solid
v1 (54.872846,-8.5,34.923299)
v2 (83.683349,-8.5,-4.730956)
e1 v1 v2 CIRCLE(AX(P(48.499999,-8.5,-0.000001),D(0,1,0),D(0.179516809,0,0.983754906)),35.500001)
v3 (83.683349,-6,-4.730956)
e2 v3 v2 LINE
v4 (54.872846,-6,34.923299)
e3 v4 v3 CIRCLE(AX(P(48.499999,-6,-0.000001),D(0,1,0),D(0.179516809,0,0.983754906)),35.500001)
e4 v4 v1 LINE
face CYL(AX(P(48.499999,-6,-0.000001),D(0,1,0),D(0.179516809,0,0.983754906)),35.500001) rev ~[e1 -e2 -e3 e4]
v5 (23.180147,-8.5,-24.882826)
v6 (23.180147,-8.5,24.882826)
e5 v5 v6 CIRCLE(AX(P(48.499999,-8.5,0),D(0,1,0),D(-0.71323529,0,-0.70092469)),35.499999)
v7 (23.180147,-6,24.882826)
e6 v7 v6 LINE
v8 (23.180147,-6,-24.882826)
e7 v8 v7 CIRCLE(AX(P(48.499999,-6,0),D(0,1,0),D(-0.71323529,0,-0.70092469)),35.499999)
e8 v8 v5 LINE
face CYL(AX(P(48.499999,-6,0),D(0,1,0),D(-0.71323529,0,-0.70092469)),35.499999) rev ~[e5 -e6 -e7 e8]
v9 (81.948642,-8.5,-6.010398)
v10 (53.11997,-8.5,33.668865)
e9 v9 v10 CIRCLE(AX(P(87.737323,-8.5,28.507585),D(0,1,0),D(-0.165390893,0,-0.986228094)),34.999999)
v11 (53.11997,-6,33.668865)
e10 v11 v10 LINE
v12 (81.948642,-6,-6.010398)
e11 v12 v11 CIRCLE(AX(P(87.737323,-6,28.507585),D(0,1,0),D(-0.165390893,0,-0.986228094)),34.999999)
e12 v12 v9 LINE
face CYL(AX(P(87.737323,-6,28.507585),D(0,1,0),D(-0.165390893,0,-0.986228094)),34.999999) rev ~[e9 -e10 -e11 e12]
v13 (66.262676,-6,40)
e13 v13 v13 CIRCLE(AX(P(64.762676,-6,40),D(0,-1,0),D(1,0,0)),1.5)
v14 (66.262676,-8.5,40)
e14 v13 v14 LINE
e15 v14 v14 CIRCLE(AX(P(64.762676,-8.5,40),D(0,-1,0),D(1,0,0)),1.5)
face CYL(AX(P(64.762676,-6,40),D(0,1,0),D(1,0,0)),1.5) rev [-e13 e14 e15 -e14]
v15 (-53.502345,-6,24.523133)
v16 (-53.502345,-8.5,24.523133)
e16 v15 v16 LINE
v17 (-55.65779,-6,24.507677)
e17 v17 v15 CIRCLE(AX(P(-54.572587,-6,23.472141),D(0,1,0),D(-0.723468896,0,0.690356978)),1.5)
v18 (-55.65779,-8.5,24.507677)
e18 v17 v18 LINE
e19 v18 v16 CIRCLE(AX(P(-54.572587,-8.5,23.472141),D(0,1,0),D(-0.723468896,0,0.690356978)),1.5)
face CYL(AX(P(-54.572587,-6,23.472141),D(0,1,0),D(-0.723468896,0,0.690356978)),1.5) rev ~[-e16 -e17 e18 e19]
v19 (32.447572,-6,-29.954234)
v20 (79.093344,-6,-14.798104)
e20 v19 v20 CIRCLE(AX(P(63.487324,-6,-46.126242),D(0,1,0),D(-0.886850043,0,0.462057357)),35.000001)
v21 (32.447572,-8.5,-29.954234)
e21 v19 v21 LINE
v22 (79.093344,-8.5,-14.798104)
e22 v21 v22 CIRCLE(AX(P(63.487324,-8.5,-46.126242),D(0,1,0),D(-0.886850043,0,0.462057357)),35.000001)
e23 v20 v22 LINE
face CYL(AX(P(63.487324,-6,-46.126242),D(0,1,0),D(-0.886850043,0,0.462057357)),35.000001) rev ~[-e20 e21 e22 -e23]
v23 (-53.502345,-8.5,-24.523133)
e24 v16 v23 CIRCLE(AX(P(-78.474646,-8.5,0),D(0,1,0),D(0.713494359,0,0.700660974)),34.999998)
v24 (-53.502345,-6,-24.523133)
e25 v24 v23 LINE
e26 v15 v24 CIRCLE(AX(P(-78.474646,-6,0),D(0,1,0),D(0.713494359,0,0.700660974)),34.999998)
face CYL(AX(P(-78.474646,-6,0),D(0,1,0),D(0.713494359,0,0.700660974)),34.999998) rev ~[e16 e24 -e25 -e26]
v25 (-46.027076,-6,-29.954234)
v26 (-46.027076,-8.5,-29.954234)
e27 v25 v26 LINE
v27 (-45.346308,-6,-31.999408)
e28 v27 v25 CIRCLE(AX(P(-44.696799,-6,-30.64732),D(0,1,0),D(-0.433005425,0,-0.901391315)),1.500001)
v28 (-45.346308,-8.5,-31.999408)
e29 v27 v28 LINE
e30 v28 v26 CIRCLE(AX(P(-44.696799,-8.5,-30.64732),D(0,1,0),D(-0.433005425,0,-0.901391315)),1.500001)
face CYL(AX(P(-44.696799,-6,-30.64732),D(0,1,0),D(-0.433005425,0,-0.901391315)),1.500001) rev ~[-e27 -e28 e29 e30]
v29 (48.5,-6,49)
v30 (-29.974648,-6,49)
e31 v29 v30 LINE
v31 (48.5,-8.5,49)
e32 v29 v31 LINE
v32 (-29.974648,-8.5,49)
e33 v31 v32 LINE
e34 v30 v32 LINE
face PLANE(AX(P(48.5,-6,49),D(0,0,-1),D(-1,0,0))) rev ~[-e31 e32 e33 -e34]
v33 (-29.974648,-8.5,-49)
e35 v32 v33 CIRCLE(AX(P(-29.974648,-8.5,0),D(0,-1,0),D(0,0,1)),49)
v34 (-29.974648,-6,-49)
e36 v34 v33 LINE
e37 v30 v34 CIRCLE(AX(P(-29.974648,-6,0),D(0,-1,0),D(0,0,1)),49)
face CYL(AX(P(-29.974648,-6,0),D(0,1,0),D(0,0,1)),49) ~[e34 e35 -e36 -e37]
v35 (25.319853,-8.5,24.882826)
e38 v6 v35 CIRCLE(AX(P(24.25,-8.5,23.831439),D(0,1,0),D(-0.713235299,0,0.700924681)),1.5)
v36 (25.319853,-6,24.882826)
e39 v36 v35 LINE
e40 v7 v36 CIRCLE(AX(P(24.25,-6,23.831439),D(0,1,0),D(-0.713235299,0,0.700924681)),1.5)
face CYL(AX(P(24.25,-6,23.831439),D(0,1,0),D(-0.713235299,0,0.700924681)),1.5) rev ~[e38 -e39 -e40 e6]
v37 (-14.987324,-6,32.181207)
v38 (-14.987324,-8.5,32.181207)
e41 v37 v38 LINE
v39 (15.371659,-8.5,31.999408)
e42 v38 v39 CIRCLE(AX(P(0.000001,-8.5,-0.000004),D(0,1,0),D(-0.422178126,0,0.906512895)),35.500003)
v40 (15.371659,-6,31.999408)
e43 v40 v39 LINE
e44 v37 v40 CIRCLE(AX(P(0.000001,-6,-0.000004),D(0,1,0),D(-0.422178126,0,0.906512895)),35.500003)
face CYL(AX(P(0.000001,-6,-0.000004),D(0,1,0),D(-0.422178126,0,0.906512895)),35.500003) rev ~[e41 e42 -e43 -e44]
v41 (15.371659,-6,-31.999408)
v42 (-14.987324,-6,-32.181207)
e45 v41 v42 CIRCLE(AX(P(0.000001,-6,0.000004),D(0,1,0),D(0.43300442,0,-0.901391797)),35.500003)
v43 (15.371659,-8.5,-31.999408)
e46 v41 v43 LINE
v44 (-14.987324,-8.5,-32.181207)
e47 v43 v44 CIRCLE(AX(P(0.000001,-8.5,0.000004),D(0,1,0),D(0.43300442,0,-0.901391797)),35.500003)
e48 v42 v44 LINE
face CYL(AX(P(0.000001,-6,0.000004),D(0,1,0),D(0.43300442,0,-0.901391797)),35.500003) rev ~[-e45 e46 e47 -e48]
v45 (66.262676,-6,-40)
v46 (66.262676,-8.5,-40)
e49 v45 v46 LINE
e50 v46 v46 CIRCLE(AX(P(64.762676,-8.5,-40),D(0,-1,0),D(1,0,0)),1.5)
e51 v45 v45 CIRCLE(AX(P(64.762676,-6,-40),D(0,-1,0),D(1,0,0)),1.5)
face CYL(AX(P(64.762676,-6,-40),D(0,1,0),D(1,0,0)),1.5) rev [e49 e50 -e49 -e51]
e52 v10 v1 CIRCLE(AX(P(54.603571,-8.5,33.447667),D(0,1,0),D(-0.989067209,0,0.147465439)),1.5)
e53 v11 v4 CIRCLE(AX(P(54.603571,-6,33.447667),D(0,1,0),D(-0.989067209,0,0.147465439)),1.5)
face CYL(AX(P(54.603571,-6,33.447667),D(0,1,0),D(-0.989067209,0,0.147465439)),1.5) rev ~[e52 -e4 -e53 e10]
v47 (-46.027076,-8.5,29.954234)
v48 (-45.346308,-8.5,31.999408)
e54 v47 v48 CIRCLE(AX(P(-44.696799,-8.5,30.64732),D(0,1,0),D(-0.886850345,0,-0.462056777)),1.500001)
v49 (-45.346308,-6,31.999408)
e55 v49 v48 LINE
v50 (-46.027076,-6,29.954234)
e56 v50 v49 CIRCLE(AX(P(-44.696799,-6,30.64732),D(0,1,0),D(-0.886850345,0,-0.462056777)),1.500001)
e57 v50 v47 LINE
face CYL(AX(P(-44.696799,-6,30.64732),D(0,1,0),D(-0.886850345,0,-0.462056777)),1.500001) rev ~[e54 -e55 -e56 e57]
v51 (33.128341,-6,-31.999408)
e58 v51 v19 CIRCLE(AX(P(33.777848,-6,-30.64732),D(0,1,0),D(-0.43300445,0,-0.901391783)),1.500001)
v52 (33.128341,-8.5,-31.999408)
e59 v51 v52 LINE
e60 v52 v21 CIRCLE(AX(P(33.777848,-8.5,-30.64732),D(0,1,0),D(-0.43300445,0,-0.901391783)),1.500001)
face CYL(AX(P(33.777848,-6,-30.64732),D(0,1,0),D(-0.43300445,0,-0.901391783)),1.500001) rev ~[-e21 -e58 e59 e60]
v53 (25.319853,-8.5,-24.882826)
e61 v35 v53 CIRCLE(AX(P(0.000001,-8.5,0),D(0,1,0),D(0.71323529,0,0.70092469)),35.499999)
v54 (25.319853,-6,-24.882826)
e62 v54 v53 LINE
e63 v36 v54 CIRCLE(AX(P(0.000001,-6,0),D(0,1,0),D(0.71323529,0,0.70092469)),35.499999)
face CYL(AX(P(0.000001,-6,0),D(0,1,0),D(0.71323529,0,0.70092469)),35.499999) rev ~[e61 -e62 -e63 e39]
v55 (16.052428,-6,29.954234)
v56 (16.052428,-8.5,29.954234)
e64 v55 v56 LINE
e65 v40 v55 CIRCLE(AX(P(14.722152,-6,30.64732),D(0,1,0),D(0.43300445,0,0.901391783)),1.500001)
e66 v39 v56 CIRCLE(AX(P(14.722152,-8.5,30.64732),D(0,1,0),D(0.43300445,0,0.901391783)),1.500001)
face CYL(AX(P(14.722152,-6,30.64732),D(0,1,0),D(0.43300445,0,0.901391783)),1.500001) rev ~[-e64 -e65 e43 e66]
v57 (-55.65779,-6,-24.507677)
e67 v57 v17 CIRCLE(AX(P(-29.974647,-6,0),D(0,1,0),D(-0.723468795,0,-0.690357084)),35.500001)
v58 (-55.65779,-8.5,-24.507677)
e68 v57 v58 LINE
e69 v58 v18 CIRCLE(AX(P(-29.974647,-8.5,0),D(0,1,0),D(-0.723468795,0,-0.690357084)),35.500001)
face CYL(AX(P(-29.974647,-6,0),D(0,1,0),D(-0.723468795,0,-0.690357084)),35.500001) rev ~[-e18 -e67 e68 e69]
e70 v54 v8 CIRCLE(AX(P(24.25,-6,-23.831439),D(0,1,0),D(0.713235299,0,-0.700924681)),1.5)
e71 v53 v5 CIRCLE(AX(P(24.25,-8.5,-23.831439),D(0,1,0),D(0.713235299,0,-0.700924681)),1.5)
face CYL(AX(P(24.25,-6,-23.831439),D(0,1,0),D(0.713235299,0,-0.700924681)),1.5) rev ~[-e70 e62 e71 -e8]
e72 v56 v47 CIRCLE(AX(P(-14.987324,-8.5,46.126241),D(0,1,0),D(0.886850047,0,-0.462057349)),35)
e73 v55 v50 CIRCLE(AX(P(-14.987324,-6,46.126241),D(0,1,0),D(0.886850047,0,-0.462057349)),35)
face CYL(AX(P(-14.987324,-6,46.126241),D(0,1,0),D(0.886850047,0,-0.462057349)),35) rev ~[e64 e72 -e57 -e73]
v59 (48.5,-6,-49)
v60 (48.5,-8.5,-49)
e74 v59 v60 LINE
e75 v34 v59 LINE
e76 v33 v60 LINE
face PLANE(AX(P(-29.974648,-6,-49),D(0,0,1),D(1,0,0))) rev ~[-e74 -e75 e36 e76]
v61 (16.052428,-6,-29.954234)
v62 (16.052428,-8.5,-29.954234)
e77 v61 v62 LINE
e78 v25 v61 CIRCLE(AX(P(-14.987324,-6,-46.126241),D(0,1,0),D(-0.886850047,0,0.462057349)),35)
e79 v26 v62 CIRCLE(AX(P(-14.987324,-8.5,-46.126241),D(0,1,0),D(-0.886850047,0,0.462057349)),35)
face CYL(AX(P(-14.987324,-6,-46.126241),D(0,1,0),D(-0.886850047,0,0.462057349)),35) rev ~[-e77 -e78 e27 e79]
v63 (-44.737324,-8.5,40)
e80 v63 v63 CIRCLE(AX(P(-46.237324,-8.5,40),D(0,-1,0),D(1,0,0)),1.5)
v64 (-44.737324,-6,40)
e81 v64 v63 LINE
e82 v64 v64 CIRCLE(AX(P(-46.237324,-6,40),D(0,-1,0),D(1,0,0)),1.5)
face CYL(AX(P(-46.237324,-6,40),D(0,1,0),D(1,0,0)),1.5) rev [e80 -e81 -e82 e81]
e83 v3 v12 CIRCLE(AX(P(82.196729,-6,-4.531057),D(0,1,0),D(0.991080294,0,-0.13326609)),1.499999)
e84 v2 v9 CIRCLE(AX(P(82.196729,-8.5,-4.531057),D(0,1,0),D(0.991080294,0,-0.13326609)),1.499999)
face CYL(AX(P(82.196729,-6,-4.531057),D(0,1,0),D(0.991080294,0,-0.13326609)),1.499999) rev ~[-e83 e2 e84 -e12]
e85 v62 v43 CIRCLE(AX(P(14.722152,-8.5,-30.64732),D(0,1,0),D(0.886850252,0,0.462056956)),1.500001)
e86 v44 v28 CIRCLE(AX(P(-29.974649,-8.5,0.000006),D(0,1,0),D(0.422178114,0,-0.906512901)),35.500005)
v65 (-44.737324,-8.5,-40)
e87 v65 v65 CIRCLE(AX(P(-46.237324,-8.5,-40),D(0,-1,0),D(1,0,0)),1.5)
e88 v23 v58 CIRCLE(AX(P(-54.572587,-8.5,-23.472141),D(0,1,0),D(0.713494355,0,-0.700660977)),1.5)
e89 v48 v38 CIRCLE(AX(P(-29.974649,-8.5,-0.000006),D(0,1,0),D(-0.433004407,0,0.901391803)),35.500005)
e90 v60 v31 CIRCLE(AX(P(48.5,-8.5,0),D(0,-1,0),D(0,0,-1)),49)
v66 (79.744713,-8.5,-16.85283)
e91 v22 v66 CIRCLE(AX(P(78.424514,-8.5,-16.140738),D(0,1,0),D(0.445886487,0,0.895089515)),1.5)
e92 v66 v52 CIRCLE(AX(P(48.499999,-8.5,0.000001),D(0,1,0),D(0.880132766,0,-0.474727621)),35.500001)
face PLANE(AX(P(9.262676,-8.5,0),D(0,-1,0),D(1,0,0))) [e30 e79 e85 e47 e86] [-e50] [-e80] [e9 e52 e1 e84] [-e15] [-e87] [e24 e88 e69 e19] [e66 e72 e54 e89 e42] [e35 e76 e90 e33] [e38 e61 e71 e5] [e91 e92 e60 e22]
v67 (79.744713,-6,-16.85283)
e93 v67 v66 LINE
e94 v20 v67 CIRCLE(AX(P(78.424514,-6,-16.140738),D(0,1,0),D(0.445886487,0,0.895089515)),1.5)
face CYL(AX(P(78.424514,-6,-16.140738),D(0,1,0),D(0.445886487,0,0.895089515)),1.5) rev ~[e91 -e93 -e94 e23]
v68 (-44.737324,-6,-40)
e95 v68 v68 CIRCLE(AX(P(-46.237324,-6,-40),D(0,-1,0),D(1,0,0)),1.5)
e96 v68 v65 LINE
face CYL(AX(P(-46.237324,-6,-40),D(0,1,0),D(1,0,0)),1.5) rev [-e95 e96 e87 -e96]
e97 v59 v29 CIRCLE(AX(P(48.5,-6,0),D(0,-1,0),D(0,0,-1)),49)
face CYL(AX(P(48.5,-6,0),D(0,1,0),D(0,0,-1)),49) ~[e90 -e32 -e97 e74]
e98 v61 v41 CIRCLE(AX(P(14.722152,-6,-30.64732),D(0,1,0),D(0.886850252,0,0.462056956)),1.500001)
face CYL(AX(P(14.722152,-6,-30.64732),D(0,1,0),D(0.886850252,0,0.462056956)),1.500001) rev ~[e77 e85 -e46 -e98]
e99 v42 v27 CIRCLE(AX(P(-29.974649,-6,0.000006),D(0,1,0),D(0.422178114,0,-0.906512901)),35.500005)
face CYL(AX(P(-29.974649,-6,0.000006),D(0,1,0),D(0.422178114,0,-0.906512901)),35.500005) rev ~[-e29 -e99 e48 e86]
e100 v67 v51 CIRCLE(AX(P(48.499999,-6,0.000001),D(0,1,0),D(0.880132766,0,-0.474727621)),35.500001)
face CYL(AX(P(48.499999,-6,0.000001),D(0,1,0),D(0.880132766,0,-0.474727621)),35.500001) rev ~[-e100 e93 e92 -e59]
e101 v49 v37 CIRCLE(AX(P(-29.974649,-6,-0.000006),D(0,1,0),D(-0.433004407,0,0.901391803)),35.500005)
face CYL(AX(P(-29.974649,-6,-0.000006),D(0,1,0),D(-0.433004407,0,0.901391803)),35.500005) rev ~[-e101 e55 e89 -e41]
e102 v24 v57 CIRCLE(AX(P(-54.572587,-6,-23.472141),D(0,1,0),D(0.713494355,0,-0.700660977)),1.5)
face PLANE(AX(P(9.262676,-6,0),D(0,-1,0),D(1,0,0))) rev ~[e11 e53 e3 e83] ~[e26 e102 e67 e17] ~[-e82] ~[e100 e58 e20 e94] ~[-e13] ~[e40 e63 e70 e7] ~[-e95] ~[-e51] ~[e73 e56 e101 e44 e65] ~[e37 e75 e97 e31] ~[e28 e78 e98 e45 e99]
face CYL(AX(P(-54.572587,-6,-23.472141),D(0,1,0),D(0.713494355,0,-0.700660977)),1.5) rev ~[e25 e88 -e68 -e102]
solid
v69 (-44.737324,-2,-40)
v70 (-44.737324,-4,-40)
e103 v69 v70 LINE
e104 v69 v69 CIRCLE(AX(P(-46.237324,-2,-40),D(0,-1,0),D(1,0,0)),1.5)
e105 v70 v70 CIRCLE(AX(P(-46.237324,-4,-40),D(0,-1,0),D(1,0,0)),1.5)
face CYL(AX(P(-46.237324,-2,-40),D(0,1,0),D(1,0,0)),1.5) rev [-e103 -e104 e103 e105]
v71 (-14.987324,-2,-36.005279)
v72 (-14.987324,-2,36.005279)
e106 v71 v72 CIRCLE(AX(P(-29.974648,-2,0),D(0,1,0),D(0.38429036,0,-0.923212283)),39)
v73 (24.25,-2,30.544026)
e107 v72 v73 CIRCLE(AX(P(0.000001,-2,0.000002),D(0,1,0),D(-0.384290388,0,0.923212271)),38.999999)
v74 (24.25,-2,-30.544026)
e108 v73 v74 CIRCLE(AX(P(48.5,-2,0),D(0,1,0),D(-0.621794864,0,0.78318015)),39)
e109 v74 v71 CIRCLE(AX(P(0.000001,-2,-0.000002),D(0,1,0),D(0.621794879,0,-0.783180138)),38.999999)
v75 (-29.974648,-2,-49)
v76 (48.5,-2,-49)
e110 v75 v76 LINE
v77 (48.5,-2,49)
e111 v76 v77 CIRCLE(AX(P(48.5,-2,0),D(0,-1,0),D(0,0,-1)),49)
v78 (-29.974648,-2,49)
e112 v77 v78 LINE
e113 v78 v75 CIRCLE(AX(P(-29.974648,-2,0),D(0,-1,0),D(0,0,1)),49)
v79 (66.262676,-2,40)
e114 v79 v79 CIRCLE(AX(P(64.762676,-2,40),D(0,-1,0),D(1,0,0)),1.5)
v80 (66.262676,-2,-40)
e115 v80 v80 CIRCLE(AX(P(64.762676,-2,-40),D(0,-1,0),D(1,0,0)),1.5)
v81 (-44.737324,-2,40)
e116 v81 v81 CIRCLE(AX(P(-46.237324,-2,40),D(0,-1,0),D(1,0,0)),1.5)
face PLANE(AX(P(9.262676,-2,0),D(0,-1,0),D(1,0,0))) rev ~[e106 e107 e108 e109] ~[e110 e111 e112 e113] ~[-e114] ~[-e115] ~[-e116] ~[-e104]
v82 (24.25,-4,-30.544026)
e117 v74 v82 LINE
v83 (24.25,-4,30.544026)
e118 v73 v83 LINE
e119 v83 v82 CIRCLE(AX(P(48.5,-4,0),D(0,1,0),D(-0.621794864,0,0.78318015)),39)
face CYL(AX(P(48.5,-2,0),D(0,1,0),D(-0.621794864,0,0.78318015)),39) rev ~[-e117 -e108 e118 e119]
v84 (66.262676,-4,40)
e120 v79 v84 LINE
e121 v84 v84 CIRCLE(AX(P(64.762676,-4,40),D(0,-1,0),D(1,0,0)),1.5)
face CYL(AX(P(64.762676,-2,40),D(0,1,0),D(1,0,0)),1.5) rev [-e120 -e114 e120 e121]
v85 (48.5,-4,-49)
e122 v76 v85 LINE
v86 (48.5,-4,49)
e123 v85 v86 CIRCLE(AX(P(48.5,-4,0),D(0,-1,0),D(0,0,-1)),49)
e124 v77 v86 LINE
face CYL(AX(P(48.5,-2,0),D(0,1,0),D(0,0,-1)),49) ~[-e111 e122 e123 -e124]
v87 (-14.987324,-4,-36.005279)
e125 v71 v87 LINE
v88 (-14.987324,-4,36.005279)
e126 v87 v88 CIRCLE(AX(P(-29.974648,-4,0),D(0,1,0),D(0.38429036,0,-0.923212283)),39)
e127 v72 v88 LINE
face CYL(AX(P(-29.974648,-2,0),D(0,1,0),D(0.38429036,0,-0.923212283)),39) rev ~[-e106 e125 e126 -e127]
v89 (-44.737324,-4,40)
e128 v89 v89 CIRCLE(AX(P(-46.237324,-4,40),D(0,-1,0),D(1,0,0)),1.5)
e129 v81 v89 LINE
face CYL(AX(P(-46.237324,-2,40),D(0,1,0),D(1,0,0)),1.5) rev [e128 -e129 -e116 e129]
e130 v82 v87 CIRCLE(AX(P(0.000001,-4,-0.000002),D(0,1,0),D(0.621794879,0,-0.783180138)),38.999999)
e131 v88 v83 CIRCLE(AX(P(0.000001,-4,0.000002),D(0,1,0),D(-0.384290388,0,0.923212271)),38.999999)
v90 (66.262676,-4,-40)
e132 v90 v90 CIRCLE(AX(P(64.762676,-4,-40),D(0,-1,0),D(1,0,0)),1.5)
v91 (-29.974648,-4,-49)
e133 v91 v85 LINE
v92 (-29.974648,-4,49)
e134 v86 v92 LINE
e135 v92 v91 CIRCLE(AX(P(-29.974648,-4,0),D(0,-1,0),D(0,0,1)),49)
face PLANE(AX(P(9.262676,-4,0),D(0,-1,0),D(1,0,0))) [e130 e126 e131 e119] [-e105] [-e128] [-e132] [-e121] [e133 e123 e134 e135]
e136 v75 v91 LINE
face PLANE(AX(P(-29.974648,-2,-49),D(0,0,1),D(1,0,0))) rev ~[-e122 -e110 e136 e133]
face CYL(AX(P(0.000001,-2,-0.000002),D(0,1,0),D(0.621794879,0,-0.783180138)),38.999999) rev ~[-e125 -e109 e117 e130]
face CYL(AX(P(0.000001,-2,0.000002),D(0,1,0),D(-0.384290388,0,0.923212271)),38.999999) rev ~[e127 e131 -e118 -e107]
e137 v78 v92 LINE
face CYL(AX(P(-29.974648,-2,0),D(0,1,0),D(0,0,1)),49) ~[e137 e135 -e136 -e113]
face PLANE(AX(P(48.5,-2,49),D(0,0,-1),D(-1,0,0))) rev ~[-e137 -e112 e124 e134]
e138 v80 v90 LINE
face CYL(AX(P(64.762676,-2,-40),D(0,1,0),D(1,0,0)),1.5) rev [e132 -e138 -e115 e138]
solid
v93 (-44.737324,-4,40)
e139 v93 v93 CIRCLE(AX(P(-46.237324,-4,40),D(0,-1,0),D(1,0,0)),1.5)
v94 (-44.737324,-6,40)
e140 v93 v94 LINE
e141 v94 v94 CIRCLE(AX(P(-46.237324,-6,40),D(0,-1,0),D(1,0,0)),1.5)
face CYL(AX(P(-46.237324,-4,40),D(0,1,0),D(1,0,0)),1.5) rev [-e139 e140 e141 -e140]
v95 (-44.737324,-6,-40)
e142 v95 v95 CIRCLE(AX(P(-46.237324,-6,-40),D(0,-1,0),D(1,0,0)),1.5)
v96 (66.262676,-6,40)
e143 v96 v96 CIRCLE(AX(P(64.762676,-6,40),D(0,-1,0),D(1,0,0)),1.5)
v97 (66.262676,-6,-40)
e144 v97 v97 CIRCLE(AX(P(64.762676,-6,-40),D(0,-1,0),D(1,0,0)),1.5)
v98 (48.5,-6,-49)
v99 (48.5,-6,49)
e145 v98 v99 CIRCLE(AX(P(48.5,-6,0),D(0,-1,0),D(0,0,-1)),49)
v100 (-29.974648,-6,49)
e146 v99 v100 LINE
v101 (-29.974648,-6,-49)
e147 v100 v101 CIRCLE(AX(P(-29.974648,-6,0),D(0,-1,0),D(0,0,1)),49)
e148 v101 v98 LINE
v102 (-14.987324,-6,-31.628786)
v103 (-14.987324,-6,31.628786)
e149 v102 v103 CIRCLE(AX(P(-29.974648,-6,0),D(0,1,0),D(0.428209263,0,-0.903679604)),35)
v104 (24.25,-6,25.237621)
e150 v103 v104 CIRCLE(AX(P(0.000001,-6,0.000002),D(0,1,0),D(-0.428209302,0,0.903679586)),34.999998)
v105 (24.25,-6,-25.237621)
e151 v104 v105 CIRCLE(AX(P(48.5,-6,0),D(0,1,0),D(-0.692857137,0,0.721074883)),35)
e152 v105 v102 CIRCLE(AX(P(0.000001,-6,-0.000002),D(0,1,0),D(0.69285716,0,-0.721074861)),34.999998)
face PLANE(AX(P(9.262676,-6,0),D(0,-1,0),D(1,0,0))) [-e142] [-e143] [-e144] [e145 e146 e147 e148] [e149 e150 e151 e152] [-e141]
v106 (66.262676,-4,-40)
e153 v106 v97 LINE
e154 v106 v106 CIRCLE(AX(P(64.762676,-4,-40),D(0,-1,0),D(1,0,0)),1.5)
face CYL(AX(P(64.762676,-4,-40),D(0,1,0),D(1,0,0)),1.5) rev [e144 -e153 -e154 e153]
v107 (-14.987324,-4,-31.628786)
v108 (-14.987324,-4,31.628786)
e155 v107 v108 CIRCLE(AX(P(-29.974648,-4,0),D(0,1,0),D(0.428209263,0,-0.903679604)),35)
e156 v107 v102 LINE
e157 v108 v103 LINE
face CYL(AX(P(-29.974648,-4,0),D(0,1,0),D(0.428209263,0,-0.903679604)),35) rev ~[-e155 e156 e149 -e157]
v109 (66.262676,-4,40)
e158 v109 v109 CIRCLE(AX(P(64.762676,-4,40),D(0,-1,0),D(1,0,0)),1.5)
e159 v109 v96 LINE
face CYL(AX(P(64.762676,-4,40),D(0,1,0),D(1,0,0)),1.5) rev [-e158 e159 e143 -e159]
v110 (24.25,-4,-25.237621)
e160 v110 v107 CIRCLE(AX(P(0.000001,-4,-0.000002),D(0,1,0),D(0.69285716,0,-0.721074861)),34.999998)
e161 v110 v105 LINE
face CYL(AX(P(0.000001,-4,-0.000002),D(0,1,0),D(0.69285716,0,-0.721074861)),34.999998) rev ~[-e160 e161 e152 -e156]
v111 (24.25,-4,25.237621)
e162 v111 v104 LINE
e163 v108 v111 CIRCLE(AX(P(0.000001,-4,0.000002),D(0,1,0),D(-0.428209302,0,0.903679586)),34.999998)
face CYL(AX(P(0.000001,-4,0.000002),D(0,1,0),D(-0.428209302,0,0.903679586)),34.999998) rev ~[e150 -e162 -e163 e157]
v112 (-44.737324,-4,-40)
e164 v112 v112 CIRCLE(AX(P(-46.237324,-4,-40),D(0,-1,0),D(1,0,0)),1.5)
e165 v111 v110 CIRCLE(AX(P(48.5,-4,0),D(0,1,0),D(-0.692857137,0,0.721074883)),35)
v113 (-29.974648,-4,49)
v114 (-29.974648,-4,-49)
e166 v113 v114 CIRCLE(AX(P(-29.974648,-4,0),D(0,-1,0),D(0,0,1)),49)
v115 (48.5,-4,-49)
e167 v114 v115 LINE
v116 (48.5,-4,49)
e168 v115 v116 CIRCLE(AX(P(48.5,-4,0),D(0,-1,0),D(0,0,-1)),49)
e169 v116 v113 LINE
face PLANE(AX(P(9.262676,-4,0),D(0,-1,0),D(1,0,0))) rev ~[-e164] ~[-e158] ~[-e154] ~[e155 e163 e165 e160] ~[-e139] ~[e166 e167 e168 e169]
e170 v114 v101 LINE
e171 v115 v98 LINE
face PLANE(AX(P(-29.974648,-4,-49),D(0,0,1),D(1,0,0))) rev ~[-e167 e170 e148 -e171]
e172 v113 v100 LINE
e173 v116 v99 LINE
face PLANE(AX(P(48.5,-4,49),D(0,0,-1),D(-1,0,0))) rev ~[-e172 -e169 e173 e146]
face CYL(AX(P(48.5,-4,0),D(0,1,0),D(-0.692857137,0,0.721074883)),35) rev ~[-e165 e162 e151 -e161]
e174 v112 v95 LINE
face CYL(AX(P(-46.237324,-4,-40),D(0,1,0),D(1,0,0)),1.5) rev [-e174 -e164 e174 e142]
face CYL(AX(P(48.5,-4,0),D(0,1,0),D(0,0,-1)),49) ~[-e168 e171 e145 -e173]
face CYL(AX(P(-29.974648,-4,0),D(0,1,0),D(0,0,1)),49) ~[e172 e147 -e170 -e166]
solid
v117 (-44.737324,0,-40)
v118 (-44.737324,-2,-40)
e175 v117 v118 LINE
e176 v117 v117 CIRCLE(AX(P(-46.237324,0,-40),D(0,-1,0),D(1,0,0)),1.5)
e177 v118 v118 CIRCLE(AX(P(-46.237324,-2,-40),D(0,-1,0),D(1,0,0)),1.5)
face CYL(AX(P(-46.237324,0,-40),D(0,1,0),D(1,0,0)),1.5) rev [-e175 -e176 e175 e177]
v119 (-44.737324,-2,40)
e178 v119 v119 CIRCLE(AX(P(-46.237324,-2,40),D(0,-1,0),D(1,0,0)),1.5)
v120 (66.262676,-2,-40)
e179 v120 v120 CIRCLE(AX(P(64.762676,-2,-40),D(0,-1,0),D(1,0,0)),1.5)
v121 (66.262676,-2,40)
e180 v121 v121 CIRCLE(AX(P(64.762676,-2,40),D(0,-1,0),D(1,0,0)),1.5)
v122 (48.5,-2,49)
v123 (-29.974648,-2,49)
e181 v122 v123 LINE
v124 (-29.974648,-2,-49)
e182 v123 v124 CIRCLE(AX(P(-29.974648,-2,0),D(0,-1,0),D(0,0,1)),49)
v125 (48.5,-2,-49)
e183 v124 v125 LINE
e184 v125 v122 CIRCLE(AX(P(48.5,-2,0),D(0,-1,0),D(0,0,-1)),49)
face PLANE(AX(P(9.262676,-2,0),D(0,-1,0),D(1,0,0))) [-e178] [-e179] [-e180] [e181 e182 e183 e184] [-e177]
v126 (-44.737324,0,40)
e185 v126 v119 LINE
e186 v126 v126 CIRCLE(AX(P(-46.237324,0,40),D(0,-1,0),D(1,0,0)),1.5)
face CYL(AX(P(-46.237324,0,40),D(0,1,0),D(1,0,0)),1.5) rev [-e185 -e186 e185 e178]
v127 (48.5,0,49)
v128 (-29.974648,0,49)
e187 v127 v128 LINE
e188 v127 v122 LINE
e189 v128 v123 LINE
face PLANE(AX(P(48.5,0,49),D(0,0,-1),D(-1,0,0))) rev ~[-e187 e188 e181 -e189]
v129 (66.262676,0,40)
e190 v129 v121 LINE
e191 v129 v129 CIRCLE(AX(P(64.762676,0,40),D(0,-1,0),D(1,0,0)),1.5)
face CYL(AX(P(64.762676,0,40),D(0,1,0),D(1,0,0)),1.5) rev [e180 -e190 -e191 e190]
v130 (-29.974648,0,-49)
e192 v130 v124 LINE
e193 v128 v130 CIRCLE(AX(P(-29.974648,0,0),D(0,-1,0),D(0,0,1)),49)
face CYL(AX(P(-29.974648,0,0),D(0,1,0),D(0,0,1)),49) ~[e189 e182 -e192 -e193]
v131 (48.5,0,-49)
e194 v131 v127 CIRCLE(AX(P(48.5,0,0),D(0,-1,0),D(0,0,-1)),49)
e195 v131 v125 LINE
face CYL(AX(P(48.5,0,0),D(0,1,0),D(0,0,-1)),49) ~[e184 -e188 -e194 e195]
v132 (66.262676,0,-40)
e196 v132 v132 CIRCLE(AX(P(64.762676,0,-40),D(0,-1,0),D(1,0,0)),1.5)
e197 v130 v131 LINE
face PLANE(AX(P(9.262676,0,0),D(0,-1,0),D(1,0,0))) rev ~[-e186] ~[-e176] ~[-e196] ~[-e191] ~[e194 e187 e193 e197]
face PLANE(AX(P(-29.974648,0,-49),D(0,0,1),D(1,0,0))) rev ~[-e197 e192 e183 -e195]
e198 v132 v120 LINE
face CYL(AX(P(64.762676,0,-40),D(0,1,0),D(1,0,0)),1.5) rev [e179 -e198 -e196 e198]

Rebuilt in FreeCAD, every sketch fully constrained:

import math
import FreeCAD as App
import Part
import Sketcher
from FreeCAD import Vector
Q = App.Units.Quantity

doc = App.newDocument("Part")
body = doc.addObject("PartDesign::Body", "Body")

# Sketch on XZ plane
sketch1 = doc.addObject("Sketcher::SketchObject", "Sketch")
body.addObject(sketch1)
sketch1.AttachmentSupport = (doc.XZ_Plane, [""])
sketch1.MapMode = "FlatFace"
sketch1.addGeometry(Part.LineSegment(Vector(48.5, 49, 0), Vector(-30, 49, 0)), False)
sketch1.addGeometry(Part.ArcOfCircle(Part.Circle(Vector(-30, 0, 0), Vector(0, 0, 1), 49), math.radians(90), math.radians(270)), False)
sketch1.addGeometry(Part.LineSegment(Vector(-30, -49, 0), Vector(48.5, -49, 0)), False)
sketch1.addGeometry(Part.ArcOfCircle(Part.Circle(Vector(48.5, 0, 0), Vector(0, 0, 1), 49), math.radians(-90), math.radians(90)), False)
sketch1.addGeometry(Part.Circle(Vector(-46.2, -40, 0), Vector(0, 0, 1), 1.5), False)
sketch1.addGeometry(Part.Circle(Vector(64.8, -40, 0), Vector(0, 0, 1), 1.5), False)
sketch1.addGeometry(Part.Circle(Vector(-46.2, 40, 0), Vector(0, 0, 1), 1.5), False)
sketch1.addGeometry(Part.Circle(Vector(64.8, 40, 0), Vector(0, 0, 1), 1.5), False)
sketch1.addConstraint(Sketcher.Constraint("Tangent", 0, 2, 1, 1))
sketch1.addConstraint(Sketcher.Constraint("Tangent", 1, 2, 2, 1))
sketch1.addConstraint(Sketcher.Constraint("Tangent", 2, 2, 3, 1))
sketch1.addConstraint(Sketcher.Constraint("Tangent", 3, 2, 0, 1))
sketch1.addConstraint(Sketcher.Constraint("Horizontal", 0))
sketch1.addConstraint(Sketcher.Constraint("Horizontal", 2))
sketch1.addConstraint(Sketcher.Constraint("Equal", 4, 5))
sketch1.addConstraint(Sketcher.Constraint("Equal", 5, 6))
sketch1.addConstraint(Sketcher.Constraint("Equal", 6, 7))
sketch1.addConstraint(Sketcher.Constraint("Symmetric", 4, 3, 6, 3, -1))
sketch1.addConstraint(Sketcher.Constraint("Symmetric", 5, 3, 7, 3, -1))
sketch1.addConstraint(Sketcher.Constraint("PointOnObject", 1, 3, -1))
sketch1.addConstraint(Sketcher.Constraint("Horizontal", 4, 3, 5, 3))
sketch1.addConstraint(Sketcher.Constraint("Diameter", 4, Q("3 mm")))
sketch1.addConstraint(Sketcher.Constraint("Radius", 1, Q("49 mm")))
sketch1.addConstraint(Sketcher.Constraint("DistanceY", 4, 3, -1, 1, Q("40 mm")))
sketch1.addConstraint(Sketcher.Constraint("DistanceX", 4, 3, 5, 3, Q("111 mm")))
sketch1.addConstraint(Sketcher.Constraint("DistanceX", -1, 1, 3, 3, Q("48.5 mm")))
sketch1.addConstraint(Sketcher.Constraint("DistanceX", 0, 2, 0, 1, Q("78.474648 mm")))
sketch1.addConstraint(Sketcher.Constraint("DistanceX", 4, 3, -1, 1, Q("46.237324 mm")))
pad1 = doc.addObject("PartDesign::Pad", "Pad")
body.addObject(pad1)
pad1.Profile = sketch1
pad1.Length = 2
body2 = doc.addObject("PartDesign::Body", "Body001")

# Sketch on XZ plane
sketch2 = doc.addObject("Sketcher::SketchObject", "Sketch001")
body2.addObject(sketch2)
sketch2.AttachmentSupport = (doc.getObject("XZ_Plane001"), [""])
sketch2.MapMode = "FlatFace"
sketch2.AttachmentOffset = App.Placement(Vector(0, 0, 2), App.Rotation())
sketch2.addGeometry(Part.LineSegment(Vector(48.5, 49, 0), Vector(-30, 49, 0)), False)
sketch2.addGeometry(Part.ArcOfCircle(Part.Circle(Vector(-30, 0, 0), Vector(0, 0, 1), 49), math.radians(90), math.radians(270)), False)
sketch2.addGeometry(Part.LineSegment(Vector(-30, -49, 0), Vector(48.5, -49, 0)), False)
sketch2.addGeometry(Part.ArcOfCircle(Part.Circle(Vector(48.5, 0, 0), Vector(0, 0, 1), 49), math.radians(-90), math.radians(90)), False)
sketch2.addGeometry(Part.Circle(Vector(-46.2, -40, 0), Vector(0, 0, 1), 1.5), False)
sketch2.addGeometry(Part.Circle(Vector(64.8, -40, 0), Vector(0, 0, 1), 1.5), False)
sketch2.addGeometry(Part.Circle(Vector(-46.2, 40, 0), Vector(0, 0, 1), 1.5), False)
sketch2.addGeometry(Part.ArcOfCircle(Part.Circle(Vector(0, 0, 0), Vector(0, 0, 1), 39), math.radians(-113), math.radians(-52)), False)
sketch2.addGeometry(Part.ArcOfCircle(Part.Circle(Vector(-30, 0, 0), Vector(0, 0, 1), 39), math.radians(67), math.radians(293)), False)
sketch2.addGeometry(Part.ArcOfCircle(Part.Circle(Vector(0, 0, 0), Vector(0, 0, 1), 39), math.radians(52), math.radians(113)), False)
sketch2.addGeometry(Part.ArcOfCircle(Part.Circle(Vector(48.5, 0, 0), Vector(0, 0, 1), 39), math.radians(-128), math.radians(128)), False)
sketch2.addGeometry(Part.Circle(Vector(64.8, 40, 0), Vector(0, 0, 1), 1.5), False)
sketch2.addConstraint(Sketcher.Constraint("Tangent", 0, 2, 1, 1))
sketch2.addConstraint(Sketcher.Constraint("Tangent", 1, 2, 2, 1))
sketch2.addConstraint(Sketcher.Constraint("Tangent", 2, 2, 3, 1))
sketch2.addConstraint(Sketcher.Constraint("Tangent", 3, 2, 0, 1))
sketch2.addConstraint(Sketcher.Constraint("Coincident", 7, 1, 8, 2))
sketch2.addConstraint(Sketcher.Constraint("Coincident", 8, 1, 9, 2))
sketch2.addConstraint(Sketcher.Constraint("Coincident", 9, 1, 10, 2))
sketch2.addConstraint(Sketcher.Constraint("Coincident", 10, 1, 7, 2))
sketch2.addConstraint(Sketcher.Constraint("Horizontal", 0))
sketch2.addConstraint(Sketcher.Constraint("Horizontal", 2))
sketch2.addConstraint(Sketcher.Constraint("Coincident", 7, 3, -1, 1))
sketch2.addConstraint(Sketcher.Constraint("Coincident", 9, 3, -1, 1))
sketch2.addConstraint(Sketcher.Constraint("Coincident", 8, 3, 1, 3))
sketch2.addConstraint(Sketcher.Constraint("Coincident", 10, 3, 3, 3))
sketch2.addConstraint(Sketcher.Constraint("Equal", 4, 5))
sketch2.addConstraint(Sketcher.Constraint("Equal", 5, 6))
sketch2.addConstraint(Sketcher.Constraint("Equal", 7, 8))
sketch2.addConstraint(Sketcher.Constraint("Equal", 8, 9))
sketch2.addConstraint(Sketcher.Constraint("Equal", 9, 10))
sketch2.addConstraint(Sketcher.Constraint("Equal", 6, 11))
sketch2.addConstraint(Sketcher.Constraint("Symmetric", 4, 3, 6, 3, -1))
sketch2.addConstraint(Sketcher.Constraint("Symmetric", 5, 3, 11, 3, -1))
sketch2.addConstraint(Sketcher.Constraint("PointOnObject", 1, 3, -1))
sketch2.addConstraint(Sketcher.Constraint("Horizontal", 4, 3, 5, 3))
sketch2.addConstraint(Sketcher.Constraint("Diameter", 4, Q("3 mm")))
sketch2.addConstraint(Sketcher.Constraint("Radius", 1, Q("49 mm")))
sketch2.addConstraint(Sketcher.Constraint("Radius", 7, Q("38.999999 mm")))
sketch2.addConstraint(Sketcher.Constraint("DistanceY", 4, 3, -1, 1, Q("40 mm")))
sketch2.addConstraint(Sketcher.Constraint("DistanceX", 4, 3, 5, 3, Q("111 mm")))
sketch2.addConstraint(Sketcher.Constraint("DistanceX", -1, 1, 3, 3, Q("48.5 mm")))
sketch2.addConstraint(Sketcher.Constraint("DistanceX", 4, 3, 7, 1, Q("31.25 mm")))
sketch2.addConstraint(Sketcher.Constraint("DistanceX", 0, 2, 0, 1, Q("78.474648 mm")))
pad2 = doc.addObject("PartDesign::Pad", "Pad001")
body2.addObject(pad2)
pad2.Profile = sketch2
pad2.Length = 2
body3 = doc.addObject("PartDesign::Body", "Body002")

# Sketch on XZ plane
sketch3 = doc.addObject("Sketcher::SketchObject", "Sketch002")
body3.addObject(sketch3)
sketch3.AttachmentSupport = (doc.getObject("XZ_Plane002"), [""])
sketch3.MapMode = "FlatFace"
sketch3.AttachmentOffset = App.Placement(Vector(0, 0, 4), App.Rotation())
sketch3.addGeometry(Part.LineSegment(Vector(48.5, 49, 0), Vector(-30, 49, 0)), False)
sketch3.addGeometry(Part.ArcOfCircle(Part.Circle(Vector(-30, 0, 0), Vector(0, 0, 1), 49), math.radians(90), math.radians(270)), False)
sketch3.addGeometry(Part.LineSegment(Vector(-30, -49, 0), Vector(48.5, -49, 0)), False)
sketch3.addGeometry(Part.ArcOfCircle(Part.Circle(Vector(48.5, 0, 0), Vector(0, 0, 1), 49), math.radians(-90), math.radians(90)), False)
sketch3.addGeometry(Part.Circle(Vector(-46.2, -40, 0), Vector(0, 0, 1), 1.5), False)
sketch3.addGeometry(Part.Circle(Vector(64.8, -40, 0), Vector(0, 0, 1), 1.5), False)
sketch3.addGeometry(Part.Circle(Vector(-46.2, 40, 0), Vector(0, 0, 1), 1.5), False)
sketch3.addGeometry(Part.ArcOfCircle(Part.Circle(Vector(0, 0, 0), Vector(0, 0, 1), 35), math.radians(46), math.radians(115)), False)
sketch3.addGeometry(Part.ArcOfCircle(Part.Circle(Vector(48.5, 0, 0), Vector(0, 0, 1), 35), math.radians(-134), math.radians(134)), False)
sketch3.addGeometry(Part.ArcOfCircle(Part.Circle(Vector(0, 0, 0), Vector(0, 0, 1), 35), math.radians(-115), math.radians(-46)), False)
sketch3.addGeometry(Part.ArcOfCircle(Part.Circle(Vector(-30, 0, 0), Vector(0, 0, 1), 35), math.radians(65), math.radians(295)), False)
sketch3.addGeometry(Part.Circle(Vector(64.8, 40, 0), Vector(0, 0, 1), 1.5), False)
sketch3.addConstraint(Sketcher.Constraint("Tangent", 0, 2, 1, 1))
sketch3.addConstraint(Sketcher.Constraint("Tangent", 1, 2, 2, 1))
sketch3.addConstraint(Sketcher.Constraint("Tangent", 2, 2, 3, 1))
sketch3.addConstraint(Sketcher.Constraint("Tangent", 3, 2, 0, 1))
sketch3.addConstraint(Sketcher.Constraint("Coincident", 7, 1, 8, 2))
sketch3.addConstraint(Sketcher.Constraint("Coincident", 8, 1, 9, 2))
sketch3.addConstraint(Sketcher.Constraint("Coincident", 9, 1, 10, 2))
sketch3.addConstraint(Sketcher.Constraint("Coincident", 10, 1, 7, 2))
sketch3.addConstraint(Sketcher.Constraint("Horizontal", 0))
sketch3.addConstraint(Sketcher.Constraint("Horizontal", 2))
sketch3.addConstraint(Sketcher.Constraint("Coincident", 7, 3, -1, 1))
sketch3.addConstraint(Sketcher.Constraint("Coincident", 9, 3, -1, 1))
sketch3.addConstraint(Sketcher.Constraint("Coincident", 8, 3, 3, 3))
sketch3.addConstraint(Sketcher.Constraint("Coincident", 10, 3, 1, 3))
sketch3.addConstraint(Sketcher.Constraint("Equal", 4, 5))
sketch3.addConstraint(Sketcher.Constraint("Equal", 5, 6))
sketch3.addConstraint(Sketcher.Constraint("Equal", 7, 9))
sketch3.addConstraint(Sketcher.Constraint("Equal", 9, 10))
sketch3.addConstraint(Sketcher.Constraint("Equal", 6, 11))
sketch3.addConstraint(Sketcher.Constraint("Symmetric", 4, 3, 6, 3, -1))
sketch3.addConstraint(Sketcher.Constraint("Symmetric", 5, 3, 11, 3, -1))
sketch3.addConstraint(Sketcher.Constraint("PointOnObject", 1, 3, -1))
sketch3.addConstraint(Sketcher.Constraint("Horizontal", 4, 3, 5, 3))
sketch3.addConstraint(Sketcher.Constraint("Diameter", 4, Q("3 mm")))
sketch3.addConstraint(Sketcher.Constraint("Radius", 1, Q("49 mm")))
sketch3.addConstraint(Sketcher.Constraint("Radius", 7, Q("34.999998 mm")))
sketch3.addConstraint(Sketcher.Constraint("Radius", 8, Q("35 mm")))
sketch3.addConstraint(Sketcher.Constraint("DistanceY", 4, 3, -1, 1, Q("40 mm")))
sketch3.addConstraint(Sketcher.Constraint("DistanceX", 4, 3, 5, 3, Q("111 mm")))
sketch3.addConstraint(Sketcher.Constraint("DistanceX", -1, 1, 3, 3, Q("48.5 mm")))
sketch3.addConstraint(Sketcher.Constraint("DistanceX", 4, 3, 9, 1, Q("31.25 mm")))
sketch3.addConstraint(Sketcher.Constraint("DistanceX", 0, 2, 0, 1, Q("78.474648 mm")))
pad3 = doc.addObject("PartDesign::Pad", "Pad002")
body3.addObject(pad3)
pad3.Profile = sketch3
pad3.Length = 2
body4 = doc.addObject("PartDesign::Body", "Body003")

# Sketch on XZ plane
sketch4 = doc.addObject("Sketcher::SketchObject", "Sketch003")
body4.addObject(sketch4)
sketch4.AttachmentSupport = (doc.getObject("XZ_Plane003"), [""])
sketch4.MapMode = "FlatFace"
sketch4.AttachmentOffset = App.Placement(Vector(0, 0, 6), App.Rotation())
sketch4.addGeometry(Part.LineSegment(Vector(48.5, 49, 0), Vector(-30, 49, 0)), False)
sketch4.addGeometry(Part.ArcOfCircle(Part.Circle(Vector(-30, 0, 0), Vector(0, 0, 1), 49), math.radians(90), math.radians(270)), False)
sketch4.addGeometry(Part.LineSegment(Vector(-30, -49, 0), Vector(48.5, -49, 0)), False)
sketch4.addGeometry(Part.ArcOfCircle(Part.Circle(Vector(48.5, 0, 0), Vector(0, 0, 1), 49), math.radians(-90), math.radians(90)), False)
sketch4.addGeometry(Part.Circle(Vector(-46.2, -40, 0), Vector(0, 0, 1), 1.5), False)
sketch4.addGeometry(Part.ArcOfCircle(Part.Circle(Vector(14.7, -30.6, 0), Vector(0, 0, 1), 1.5), math.radians(-64), math.radians(28)), False)
sketch4.addGeometry(Part.ArcOfCircle(Part.Circle(Vector(0, 0, 0), Vector(0, 0, 1), 35.5), math.radians(-115), math.radians(-64)), False)
sketch4.addGeometry(Part.ArcOfCircle(Part.Circle(Vector(-30, 0, 0), Vector(0, 0, 1), 35.5), math.radians(-116), math.radians(-65)), False)
sketch4.addGeometry(Part.ArcOfCircle(Part.Circle(Vector(-44.7, -30.6, 0), Vector(0, 0, 1), 1.5), math.radians(152), math.radians(244)), False)
sketch4.addGeometry(Part.ArcOfCircle(Part.Circle(Vector(-15, -46.1, 0), Vector(0, 0, 1), 35), math.radians(28), math.radians(152)), False)
sketch4.addGeometry(Part.Circle(Vector(64.8, -40, 0), Vector(0, 0, 1), 1.5), False)
sketch4.addGeometry(Part.ArcOfCircle(Part.Circle(Vector(78.4, -16.1, 0), Vector(0, 0, 1), 1.5), math.radians(-28), math.radians(64)), False)
sketch4.addGeometry(Part.ArcOfCircle(Part.Circle(Vector(48.5, 0, 0), Vector(0, 0, 1), 35.5), math.radians(-116), math.radians(-28)), False)
sketch4.addGeometry(Part.ArcOfCircle(Part.Circle(Vector(33.8, -30.6, 0), Vector(0, 0, 1), 1.5), math.radians(152), math.radians(244)), False)
sketch4.addGeometry(Part.ArcOfCircle(Part.Circle(Vector(63.5, -46.1, 0), Vector(0, 0, 1), 35), math.radians(64), math.radians(152)), False)
sketch4.addGeometry(Part.ArcOfCircle(Part.Circle(Vector(-30, 0, 0), Vector(0, 0, 1), 35.5), math.radians(136), math.radians(224)), False)
sketch4.addGeometry(Part.ArcOfCircle(Part.Circle(Vector(-54.6, 23.5, 0), Vector(0, 0, 1), 1.5), math.radians(44), math.radians(136)), False)
sketch4.addGeometry(Part.ArcOfCircle(Part.Circle(Vector(-78.5, 0, 0), Vector(0, 0, 1), 35), math.radians(-44), math.radians(44)), False)
sketch4.addGeometry(Part.ArcOfCircle(Part.Circle(Vector(-54.6, -23.5, 0), Vector(0, 0, 1), 1.5), math.radians(-136), math.radians(-44)), False)
sketch4.addGeometry(Part.Circle(Vector(-46.2, 40, 0), Vector(0, 0, 1), 1.5), False)
sketch4.addGeometry(Part.ArcOfCircle(Part.Circle(Vector(-44.7, 30.6, 0), Vector(0, 0, 1), 1.5), math.radians(116), math.radians(208)), False)
sketch4.addGeometry(Part.ArcOfCircle(Part.Circle(Vector(-30, 0, 0), Vector(0, 0, 1), 35.5), math.radians(65), math.radians(116)), False)
sketch4.addGeometry(Part.ArcOfCircle(Part.Circle(Vector(0, 0, 0), Vector(0, 0, 1), 35.5), math.radians(64), math.radians(115)), False)
sketch4.addGeometry(Part.ArcOfCircle(Part.Circle(Vector(14.7, 30.6, 0), Vector(0, 0, 1), 1.5), math.radians(-28), math.radians(64)), False)
sketch4.addGeometry(Part.ArcOfCircle(Part.Circle(Vector(-15, 46.1, 0), Vector(0, 0, 1), 35), math.radians(-152), math.radians(-28)), False)
sketch4.addGeometry(Part.ArcOfCircle(Part.Circle(Vector(48.5, 0, 0), Vector(0, 0, 1), 35.5), math.radians(135), math.radians(225)), False)
sketch4.addGeometry(Part.ArcOfCircle(Part.Circle(Vector(24.2, 23.8, 0), Vector(0, 0, 1), 1.5), math.radians(45), math.radians(135)), False)
sketch4.addGeometry(Part.ArcOfCircle(Part.Circle(Vector(0, 0, 0), Vector(0, 0, 1), 35.5), math.radians(-45), math.radians(45)), False)
sketch4.addGeometry(Part.ArcOfCircle(Part.Circle(Vector(24.2, -23.8, 0), Vector(0, 0, 1), 1.5), math.radians(-135), math.radians(-45)), False)
sketch4.addGeometry(Part.ArcOfCircle(Part.Circle(Vector(48.5, 0, 0), Vector(0, 0, 1), 35.5), math.radians(-8), math.radians(80)), False)
sketch4.addGeometry(Part.ArcOfCircle(Part.Circle(Vector(82.2, -4.5, 0), Vector(0, 0, 1), 1.5), math.radians(-100), math.radians(-8)), False)
sketch4.addGeometry(Part.ArcOfCircle(Part.Circle(Vector(87.7, 28.5, 0), Vector(0, 0, 1), 35), math.radians(172), math.radians(260)), False)
sketch4.addGeometry(Part.ArcOfCircle(Part.Circle(Vector(54.6, 33.4, 0), Vector(0, 0, 1), 1.5), math.radians(80), math.radians(172)), False)
sketch4.addGeometry(Part.Circle(Vector(64.8, 40, 0), Vector(0, 0, 1), 1.5), False)
sketch4.addConstraint(Sketcher.Constraint("Tangent", 0, 2, 1, 1))
sketch4.addConstraint(Sketcher.Constraint("Tangent", 1, 2, 2, 1))
sketch4.addConstraint(Sketcher.Constraint("Tangent", 2, 2, 3, 1))
sketch4.addConstraint(Sketcher.Constraint("Tangent", 3, 2, 0, 1))
sketch4.addConstraint(Sketcher.Constraint("Tangent", 5, 1, 6, 2))
sketch4.addConstraint(Sketcher.Constraint("Coincident", 6, 1, 7, 2))
sketch4.addConstraint(Sketcher.Constraint("Tangent", 7, 1, 8, 2))
sketch4.addConstraint(Sketcher.Constraint("Tangent", 8, 1, 9, 2))
sketch4.addConstraint(Sketcher.Constraint("Tangent", 9, 1, 5, 2))
sketch4.addConstraint(Sketcher.Constraint("Tangent", 11, 1, 12, 2))
sketch4.addConstraint(Sketcher.Constraint("Tangent", 12, 1, 13, 2))
sketch4.addConstraint(Sketcher.Constraint("Tangent", 13, 1, 14, 2))
sketch4.addConstraint(Sketcher.Constraint("Tangent", 14, 1, 11, 2))
sketch4.addConstraint(Sketcher.Constraint("Tangent", 15, 1, 16, 2))
sketch4.addConstraint(Sketcher.Constraint("Tangent", 16, 1, 17, 2))
sketch4.addConstraint(Sketcher.Constraint("Tangent", 17, 1, 18, 2))
sketch4.addConstraint(Sketcher.Constraint("Tangent", 18, 1, 15, 2))
sketch4.addConstraint(Sketcher.Constraint("Tangent", 20, 1, 21, 2))
sketch4.addConstraint(Sketcher.Constraint("Coincident", 21, 1, 22, 2))
sketch4.addConstraint(Sketcher.Constraint("Tangent", 22, 1, 23, 2))
sketch4.addConstraint(Sketcher.Constraint("Tangent", 23, 1, 24, 2))
sketch4.addConstraint(Sketcher.Constraint("Tangent", 24, 1, 20, 2))
sketch4.addConstraint(Sketcher.Constraint("Tangent", 25, 1, 26, 2))
sketch4.addConstraint(Sketcher.Constraint("Tangent", 26, 1, 27, 2))
sketch4.addConstraint(Sketcher.Constraint("Tangent", 27, 1, 28, 2))
sketch4.addConstraint(Sketcher.Constraint("Tangent", 28, 1, 25, 2))
sketch4.addConstraint(Sketcher.Constraint("Tangent", 29, 1, 30, 2))
sketch4.addConstraint(Sketcher.Constraint("Tangent", 30, 1, 31, 2))
sketch4.addConstraint(Sketcher.Constraint("Tangent", 31, 1, 32, 2))
sketch4.addConstraint(Sketcher.Constraint("Tangent", 32, 1, 29, 2))
sketch4.addConstraint(Sketcher.Constraint("Horizontal", 0))
sketch4.addConstraint(Sketcher.Constraint("Horizontal", 2))
sketch4.addConstraint(Sketcher.Constraint("Coincident", 6, 3, -1, 1))
sketch4.addConstraint(Sketcher.Constraint("Coincident", 22, 3, -1, 1))
sketch4.addConstraint(Sketcher.Constraint("Coincident", 27, 3, -1, 1))
sketch4.addConstraint(Sketcher.Constraint("Coincident", 7, 3, 1, 3))
sketch4.addConstraint(Sketcher.Constraint("Coincident", 12, 3, 3, 3))
sketch4.addConstraint(Sketcher.Constraint("Coincident", 15, 3, 1, 3))
sketch4.addConstraint(Sketcher.Constraint("Coincident", 21, 3, 1, 3))
sketch4.addConstraint(Sketcher.Constraint("Coincident", 25, 3, 3, 3))
sketch4.addConstraint(Sketcher.Constraint("Coincident", 29, 3, 3, 3))
sketch4.addConstraint(Sketcher.Constraint("Equal", 4, 5))
sketch4.addConstraint(Sketcher.Constraint("Equal", 5, 8))
sketch4.addConstraint(Sketcher.Constraint("Equal", 8, 10))
sketch4.addConstraint(Sketcher.Constraint("Equal", 10, 11))
sketch4.addConstraint(Sketcher.Constraint("Equal", 11, 13))
sketch4.addConstraint(Sketcher.Constraint("Equal", 9, 14))
sketch4.addConstraint(Sketcher.Constraint("Equal", 12, 15))
sketch4.addConstraint(Sketcher.Constraint("Equal", 13, 16))
sketch4.addConstraint(Sketcher.Constraint("Equal", 9, 17))
sketch4.addConstraint(Sketcher.Constraint("Equal", 16, 18))
sketch4.addConstraint(Sketcher.Constraint("Equal", 18, 19))
sketch4.addConstraint(Sketcher.Constraint("Equal", 19, 20))
sketch4.addConstraint(Sketcher.Constraint("Equal", 7, 21))
sketch4.addConstraint(Sketcher.Constraint("Equal", 6, 22))
sketch4.addConstraint(Sketcher.Constraint("Equal", 20, 23))
sketch4.addConstraint(Sketcher.Constraint("Equal", 17, 24))
sketch4.addConstraint(Sketcher.Constraint("Equal", 15, 25))
sketch4.addConstraint(Sketcher.Constraint("Equal", 23, 26))
sketch4.addConstraint(Sketcher.Constraint("Equal", 25, 27))
sketch4.addConstraint(Sketcher.Constraint("Equal", 26, 28))
sketch4.addConstraint(Sketcher.Constraint("Equal", 27, 29))
sketch4.addConstraint(Sketcher.Constraint("Equal", 28, 30))
sketch4.addConstraint(Sketcher.Constraint("Equal", 24, 31))
sketch4.addConstraint(Sketcher.Constraint("Equal", 30, 32))
sketch4.addConstraint(Sketcher.Constraint("Equal", 32, 33))
sketch4.addConstraint(Sketcher.Constraint("Symmetric", 16, 3, 18, 3, -1))
sketch4.addConstraint(Sketcher.Constraint("Symmetric", 4, 3, 19, 3, -1))
sketch4.addConstraint(Sketcher.Constraint("Symmetric", 9, 3, 24, 3, -1))
sketch4.addConstraint(Sketcher.Constraint("Symmetric", 10, 3, 33, 3, -1))
sketch4.addConstraint(Sketcher.Constraint("Horizontal", 5, 3, 8, 3))
sketch4.addConstraint(Sketcher.Constraint("Horizontal", 4, 3, 10, 3))
sketch4.addConstraint(Sketcher.Constraint("Horizontal", 8, 3, 13, 3))
sketch4.addConstraint(Sketcher.Constraint("Horizontal", 9, 3, 14, 3))
sketch4.addConstraint(Sketcher.Constraint("Vertical", 24, 3, 6, 1))
sketch4.addConstraint(Sketcher.Constraint("Diameter", 4, Q("3 mm")))
sketch4.addConstraint(Sketcher.Constraint("Radius", 1, Q("49 mm")))
sketch4.addConstraint(Sketcher.Constraint("Radius", 9, Q("35 mm")))
sketch4.addConstraint(Sketcher.Constraint("Radius", 12, Q("35.500001 mm")))
sketch4.addConstraint(Sketcher.Constraint("DistanceY", 4, 3, -1, 1, Q("40 mm")))
sketch4.addConstraint(Sketcher.Constraint("DistanceX", -1, 1, 3, 3, Q("48.5 mm")))
sketch4.addConstraint(Sketcher.Constraint("Radius", 6, Q("35.500003 mm")))
sketch4.addConstraint(Sketcher.Constraint("DistanceX", 0, 2, 0, 1, Q("78.474648 mm")))
sketch4.addConstraint(Sketcher.Constraint("DistanceX", 8, 3, -1, 1, Q("44.696799 mm")))
sketch4.addConstraint(Sketcher.Constraint("DistanceY", -1, 1, 32, 1, Q("34.923299 mm")))
sketch4.addConstraint(Sketcher.Constraint("DistanceY", -1, 1, 16, 3, Q("23.472141 mm")))
sketch4.addConstraint(Sketcher.Constraint("DistanceX", -1, 1, 30, 3, Q("82.196729 mm")))
sketch4.addConstraint(Sketcher.Constraint("DistanceX", 4, 3, -1, 1, Q("46.237324 mm")))
sketch4.addConstraint(Sketcher.Constraint("DistanceX", -1, 1, 10, 3, Q("64.762676 mm")))
pad4 = doc.addObject("PartDesign::Pad", "Pad003")
body4.addObject(pad4)
pad4.Profile = sketch4
pad4.Length = 2.5

doc.recompute()
